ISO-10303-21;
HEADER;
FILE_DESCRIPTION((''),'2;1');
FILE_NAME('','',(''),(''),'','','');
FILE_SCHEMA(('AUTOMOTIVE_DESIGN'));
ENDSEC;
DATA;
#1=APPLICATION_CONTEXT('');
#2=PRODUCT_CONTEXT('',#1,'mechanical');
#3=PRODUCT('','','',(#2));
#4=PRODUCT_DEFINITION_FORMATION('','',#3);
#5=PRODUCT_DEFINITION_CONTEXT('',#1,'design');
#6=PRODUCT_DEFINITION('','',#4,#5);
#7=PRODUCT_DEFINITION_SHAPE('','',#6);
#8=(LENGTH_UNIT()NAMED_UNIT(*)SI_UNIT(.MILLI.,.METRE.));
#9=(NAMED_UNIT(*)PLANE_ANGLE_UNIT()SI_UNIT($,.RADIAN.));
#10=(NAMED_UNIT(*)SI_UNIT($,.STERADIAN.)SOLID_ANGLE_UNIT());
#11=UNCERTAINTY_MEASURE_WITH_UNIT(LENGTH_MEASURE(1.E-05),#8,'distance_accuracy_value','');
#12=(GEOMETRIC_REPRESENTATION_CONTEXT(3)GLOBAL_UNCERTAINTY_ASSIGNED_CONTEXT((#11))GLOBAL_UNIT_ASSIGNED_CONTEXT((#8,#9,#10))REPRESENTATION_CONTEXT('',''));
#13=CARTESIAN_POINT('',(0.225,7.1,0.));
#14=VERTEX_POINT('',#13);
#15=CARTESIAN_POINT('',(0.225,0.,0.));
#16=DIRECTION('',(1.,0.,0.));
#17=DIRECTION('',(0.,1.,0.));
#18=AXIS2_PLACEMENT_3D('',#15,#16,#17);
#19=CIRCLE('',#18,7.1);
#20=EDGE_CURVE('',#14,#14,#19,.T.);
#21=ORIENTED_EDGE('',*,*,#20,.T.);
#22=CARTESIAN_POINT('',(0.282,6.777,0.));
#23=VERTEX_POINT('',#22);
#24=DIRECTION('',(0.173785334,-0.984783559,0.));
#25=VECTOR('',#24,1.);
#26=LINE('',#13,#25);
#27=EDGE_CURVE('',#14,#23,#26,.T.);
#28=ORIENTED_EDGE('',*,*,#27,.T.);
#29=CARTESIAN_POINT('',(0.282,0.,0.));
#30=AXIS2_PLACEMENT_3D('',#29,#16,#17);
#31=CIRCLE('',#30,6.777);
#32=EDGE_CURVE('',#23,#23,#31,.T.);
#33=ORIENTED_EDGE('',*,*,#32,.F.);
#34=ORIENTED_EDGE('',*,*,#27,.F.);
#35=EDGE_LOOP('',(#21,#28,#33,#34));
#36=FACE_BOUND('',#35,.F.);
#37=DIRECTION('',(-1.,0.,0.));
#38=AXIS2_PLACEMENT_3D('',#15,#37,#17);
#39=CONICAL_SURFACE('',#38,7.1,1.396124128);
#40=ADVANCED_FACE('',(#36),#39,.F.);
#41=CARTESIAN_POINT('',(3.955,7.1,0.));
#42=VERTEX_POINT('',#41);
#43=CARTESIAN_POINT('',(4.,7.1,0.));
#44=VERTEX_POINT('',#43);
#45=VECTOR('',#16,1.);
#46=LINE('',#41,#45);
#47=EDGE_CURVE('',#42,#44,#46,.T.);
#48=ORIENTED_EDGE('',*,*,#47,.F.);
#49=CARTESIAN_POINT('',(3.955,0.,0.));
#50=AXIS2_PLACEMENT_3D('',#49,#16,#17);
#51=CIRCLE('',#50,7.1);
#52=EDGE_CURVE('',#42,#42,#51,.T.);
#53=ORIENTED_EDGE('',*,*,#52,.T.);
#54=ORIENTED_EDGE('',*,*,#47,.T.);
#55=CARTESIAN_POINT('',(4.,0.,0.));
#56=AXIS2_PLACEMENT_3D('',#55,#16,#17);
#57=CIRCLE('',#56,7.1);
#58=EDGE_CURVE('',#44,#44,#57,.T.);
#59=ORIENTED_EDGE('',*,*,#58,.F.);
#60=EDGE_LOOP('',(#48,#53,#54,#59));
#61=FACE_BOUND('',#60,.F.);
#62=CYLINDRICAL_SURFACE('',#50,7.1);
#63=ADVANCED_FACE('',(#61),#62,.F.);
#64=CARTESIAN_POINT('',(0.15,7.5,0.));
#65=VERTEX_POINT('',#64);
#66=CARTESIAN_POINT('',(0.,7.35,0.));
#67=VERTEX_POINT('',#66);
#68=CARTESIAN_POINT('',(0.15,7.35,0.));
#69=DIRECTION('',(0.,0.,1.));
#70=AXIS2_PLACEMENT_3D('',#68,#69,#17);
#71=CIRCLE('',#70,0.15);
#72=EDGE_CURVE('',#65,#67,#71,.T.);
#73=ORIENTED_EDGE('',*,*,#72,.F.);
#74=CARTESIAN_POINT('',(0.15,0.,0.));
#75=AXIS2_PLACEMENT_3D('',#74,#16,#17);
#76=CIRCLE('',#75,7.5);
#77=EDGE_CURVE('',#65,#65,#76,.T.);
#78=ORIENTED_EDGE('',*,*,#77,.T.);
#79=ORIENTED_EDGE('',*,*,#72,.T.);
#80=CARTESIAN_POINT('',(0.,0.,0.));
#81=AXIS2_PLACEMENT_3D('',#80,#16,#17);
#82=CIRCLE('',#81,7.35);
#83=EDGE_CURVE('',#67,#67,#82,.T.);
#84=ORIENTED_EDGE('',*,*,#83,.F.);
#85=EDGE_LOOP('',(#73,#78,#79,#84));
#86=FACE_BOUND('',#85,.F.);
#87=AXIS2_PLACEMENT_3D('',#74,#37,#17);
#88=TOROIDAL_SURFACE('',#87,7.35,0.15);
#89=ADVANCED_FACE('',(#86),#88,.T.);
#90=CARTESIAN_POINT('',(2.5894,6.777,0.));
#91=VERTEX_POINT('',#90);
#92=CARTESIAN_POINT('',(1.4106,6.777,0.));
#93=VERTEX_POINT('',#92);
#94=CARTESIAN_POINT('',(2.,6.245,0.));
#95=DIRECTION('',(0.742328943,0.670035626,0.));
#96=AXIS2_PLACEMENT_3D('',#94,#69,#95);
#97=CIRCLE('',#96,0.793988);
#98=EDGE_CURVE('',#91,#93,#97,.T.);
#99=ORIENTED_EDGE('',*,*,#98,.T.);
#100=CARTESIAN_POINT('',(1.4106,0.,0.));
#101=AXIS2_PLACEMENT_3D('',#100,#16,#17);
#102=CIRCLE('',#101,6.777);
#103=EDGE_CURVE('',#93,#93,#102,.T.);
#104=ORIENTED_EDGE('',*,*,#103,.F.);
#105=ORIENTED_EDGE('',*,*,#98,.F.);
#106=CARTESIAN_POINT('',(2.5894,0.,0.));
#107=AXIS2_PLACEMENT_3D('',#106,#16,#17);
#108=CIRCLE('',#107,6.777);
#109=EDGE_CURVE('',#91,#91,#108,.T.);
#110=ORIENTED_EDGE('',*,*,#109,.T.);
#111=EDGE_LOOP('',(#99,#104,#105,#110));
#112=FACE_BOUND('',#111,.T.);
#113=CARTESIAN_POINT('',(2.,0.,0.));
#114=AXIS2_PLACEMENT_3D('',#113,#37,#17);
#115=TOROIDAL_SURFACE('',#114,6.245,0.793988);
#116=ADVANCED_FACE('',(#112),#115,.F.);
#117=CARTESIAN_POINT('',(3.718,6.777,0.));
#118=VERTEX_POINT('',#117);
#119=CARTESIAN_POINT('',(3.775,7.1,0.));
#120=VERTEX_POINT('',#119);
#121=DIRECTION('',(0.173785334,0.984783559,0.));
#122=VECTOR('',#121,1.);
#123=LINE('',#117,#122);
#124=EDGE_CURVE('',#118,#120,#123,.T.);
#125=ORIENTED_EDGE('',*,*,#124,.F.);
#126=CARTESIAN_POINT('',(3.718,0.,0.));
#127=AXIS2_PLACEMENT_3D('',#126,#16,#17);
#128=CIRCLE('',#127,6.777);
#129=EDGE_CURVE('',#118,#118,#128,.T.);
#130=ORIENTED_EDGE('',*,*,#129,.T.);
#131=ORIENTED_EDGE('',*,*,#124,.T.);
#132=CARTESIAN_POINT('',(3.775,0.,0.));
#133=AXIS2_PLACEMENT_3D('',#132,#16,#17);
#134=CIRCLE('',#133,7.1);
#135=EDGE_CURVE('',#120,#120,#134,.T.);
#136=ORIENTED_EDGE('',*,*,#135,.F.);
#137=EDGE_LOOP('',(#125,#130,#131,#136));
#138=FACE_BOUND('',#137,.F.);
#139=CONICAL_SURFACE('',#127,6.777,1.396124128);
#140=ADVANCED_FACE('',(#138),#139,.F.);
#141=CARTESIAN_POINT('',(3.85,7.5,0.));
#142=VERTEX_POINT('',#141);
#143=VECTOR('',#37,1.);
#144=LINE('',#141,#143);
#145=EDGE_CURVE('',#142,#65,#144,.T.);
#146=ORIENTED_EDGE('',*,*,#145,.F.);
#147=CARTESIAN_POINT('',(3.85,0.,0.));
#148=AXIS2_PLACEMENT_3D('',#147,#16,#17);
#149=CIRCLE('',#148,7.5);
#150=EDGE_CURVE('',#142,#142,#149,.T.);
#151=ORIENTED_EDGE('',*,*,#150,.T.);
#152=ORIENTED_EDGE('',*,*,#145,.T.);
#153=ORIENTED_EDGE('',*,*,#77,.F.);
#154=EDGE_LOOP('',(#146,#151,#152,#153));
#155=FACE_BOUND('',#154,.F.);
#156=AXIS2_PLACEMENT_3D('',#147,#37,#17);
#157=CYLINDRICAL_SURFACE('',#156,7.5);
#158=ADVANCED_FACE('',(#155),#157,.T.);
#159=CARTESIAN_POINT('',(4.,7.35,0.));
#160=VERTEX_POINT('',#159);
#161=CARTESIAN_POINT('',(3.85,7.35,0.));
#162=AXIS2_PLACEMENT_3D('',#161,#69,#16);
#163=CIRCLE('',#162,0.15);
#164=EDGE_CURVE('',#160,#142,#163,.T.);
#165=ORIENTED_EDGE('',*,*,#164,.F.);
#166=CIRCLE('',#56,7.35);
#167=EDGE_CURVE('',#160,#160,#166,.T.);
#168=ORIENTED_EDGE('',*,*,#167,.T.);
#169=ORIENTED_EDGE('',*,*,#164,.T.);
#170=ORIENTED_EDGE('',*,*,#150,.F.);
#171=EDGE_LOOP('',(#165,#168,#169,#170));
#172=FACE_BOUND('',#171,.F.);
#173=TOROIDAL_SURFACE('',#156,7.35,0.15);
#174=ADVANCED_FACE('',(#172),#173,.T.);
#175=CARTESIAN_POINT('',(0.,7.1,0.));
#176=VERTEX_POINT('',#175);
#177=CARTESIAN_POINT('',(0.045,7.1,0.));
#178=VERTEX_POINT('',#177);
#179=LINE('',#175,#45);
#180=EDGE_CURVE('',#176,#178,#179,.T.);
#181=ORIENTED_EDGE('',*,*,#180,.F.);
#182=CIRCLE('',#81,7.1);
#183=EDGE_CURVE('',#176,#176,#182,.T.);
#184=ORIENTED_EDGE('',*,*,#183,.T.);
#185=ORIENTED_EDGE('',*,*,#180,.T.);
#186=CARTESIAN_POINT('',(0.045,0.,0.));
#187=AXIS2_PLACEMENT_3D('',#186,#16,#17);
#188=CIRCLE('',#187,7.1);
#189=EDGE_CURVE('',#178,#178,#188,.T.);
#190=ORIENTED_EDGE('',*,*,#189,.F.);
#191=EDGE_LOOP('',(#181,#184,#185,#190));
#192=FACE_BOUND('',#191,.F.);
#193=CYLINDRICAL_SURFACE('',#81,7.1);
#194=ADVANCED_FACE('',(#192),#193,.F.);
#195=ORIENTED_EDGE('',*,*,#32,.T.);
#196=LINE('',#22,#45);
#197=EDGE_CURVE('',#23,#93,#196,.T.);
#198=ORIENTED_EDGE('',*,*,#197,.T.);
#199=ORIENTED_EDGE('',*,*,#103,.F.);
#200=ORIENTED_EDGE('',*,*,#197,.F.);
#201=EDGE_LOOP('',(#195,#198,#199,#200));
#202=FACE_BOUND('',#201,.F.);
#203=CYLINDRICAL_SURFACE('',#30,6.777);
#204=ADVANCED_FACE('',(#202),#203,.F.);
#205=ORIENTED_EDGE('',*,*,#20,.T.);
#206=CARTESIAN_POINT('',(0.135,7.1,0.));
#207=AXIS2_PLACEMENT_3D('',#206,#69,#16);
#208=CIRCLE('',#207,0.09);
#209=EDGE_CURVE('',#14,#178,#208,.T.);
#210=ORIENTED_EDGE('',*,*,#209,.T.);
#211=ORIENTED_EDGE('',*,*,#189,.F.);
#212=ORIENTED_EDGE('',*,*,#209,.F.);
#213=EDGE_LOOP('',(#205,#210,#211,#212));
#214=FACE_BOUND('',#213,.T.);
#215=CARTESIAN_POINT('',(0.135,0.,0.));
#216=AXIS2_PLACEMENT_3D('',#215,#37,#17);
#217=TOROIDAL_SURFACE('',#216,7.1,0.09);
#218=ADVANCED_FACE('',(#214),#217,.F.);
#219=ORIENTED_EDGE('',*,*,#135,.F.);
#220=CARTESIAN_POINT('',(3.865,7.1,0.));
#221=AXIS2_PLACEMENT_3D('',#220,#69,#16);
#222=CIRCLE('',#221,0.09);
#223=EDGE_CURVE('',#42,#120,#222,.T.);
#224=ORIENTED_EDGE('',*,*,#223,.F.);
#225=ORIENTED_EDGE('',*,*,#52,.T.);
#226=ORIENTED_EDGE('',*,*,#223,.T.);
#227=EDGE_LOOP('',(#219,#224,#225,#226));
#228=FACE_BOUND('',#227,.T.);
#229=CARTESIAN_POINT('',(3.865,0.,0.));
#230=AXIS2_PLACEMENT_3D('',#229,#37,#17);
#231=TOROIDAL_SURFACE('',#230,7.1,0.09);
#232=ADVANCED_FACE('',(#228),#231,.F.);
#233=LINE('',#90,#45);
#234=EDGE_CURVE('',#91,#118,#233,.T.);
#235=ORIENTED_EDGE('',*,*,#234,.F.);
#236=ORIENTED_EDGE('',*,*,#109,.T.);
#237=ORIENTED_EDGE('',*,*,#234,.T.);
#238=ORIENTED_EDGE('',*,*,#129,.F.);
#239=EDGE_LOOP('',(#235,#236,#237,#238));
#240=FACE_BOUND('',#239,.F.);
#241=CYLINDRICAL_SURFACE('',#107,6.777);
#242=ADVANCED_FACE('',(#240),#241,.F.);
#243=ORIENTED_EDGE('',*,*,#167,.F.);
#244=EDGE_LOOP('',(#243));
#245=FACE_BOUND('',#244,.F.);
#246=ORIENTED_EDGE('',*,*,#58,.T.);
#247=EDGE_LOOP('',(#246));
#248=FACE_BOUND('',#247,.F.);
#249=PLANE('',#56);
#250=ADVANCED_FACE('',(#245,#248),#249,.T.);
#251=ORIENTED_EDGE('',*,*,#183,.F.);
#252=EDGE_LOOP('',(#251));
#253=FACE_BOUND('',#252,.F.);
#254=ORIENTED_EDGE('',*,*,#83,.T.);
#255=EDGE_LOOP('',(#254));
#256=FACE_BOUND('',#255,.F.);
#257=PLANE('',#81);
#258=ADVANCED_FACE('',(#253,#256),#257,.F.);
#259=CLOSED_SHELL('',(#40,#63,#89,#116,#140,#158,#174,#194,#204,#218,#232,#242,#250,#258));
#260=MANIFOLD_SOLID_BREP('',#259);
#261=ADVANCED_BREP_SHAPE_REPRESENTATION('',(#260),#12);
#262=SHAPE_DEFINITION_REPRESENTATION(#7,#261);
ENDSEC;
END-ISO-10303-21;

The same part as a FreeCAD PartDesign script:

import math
import FreeCAD as App
import Part
import Sketcher

doc = App.newDocument("Part")
params = doc.addObject("Spreadsheet::Sheet", "Params")
for row, (alias, value) in enumerate([
    ("sketch1_radius", "0.09 mm"),
    ("sketch1_radius2", "0.15 mm"),
    ("sketch1_width", "3.7 mm"),
    ("sketch1_height", "0.25 mm"),
    ("revolution_angle", "360 deg"),
], start=1):
    params.set(f"A{row}", alias)
    params.set(f"B{row}", "=" + value)
    params.setAlias(f"B{row}", alias)

body = doc.addObject("PartDesign::Body", "Body")

# Sketch on XY plane
sketch1 = body.newObject("Sketcher::SketchObject", "Sketch")
sketch1.AttachmentSupport = (doc.getObject("XY_Plane"), [""])
sketch1.MapMode = "FlatFace"
sketch1.addGeometry(Part.LineSegment(App.Vector(0, 7.35, 0), App.Vector(0, 7.1, 0)), False)
sketch1.addGeometry(Part.LineSegment(App.Vector(0, 7.1, 0), App.Vector(0.045, 7.1, 0)), False)
sketch1.addGeometry(Part.ArcOfCircle(Part.Circle(App.Vector(0.135, 7.1, 0), App.Vector(0, 0, 1), 0.09), math.radians(0), math.radians(180)), False)
sketch1.addGeometry(Part.LineSegment(App.Vector(0.225, 7.1, 0), App.Vector(0.282, 6.777, 0)), False)
sketch1.addGeometry(Part.LineSegment(App.Vector(0.282, 6.777, 0), App.Vector(1.411, 6.777, 0)), False)
sketch1.addGeometry(Part.ArcOfCircle(Part.Circle(App.Vector(2, 6.245, 0), App.Vector(0, 0, 1), 0.794), math.radians(42), math.radians(138)), False)
sketch1.addGeometry(Part.LineSegment(App.Vector(2.589, 6.777, 0), App.Vector(3.718, 6.777, 0)), False)
sketch1.addGeometry(Part.LineSegment(App.Vector(3.718, 6.777, 0), App.Vector(3.775, 7.1, 0)), False)
sketch1.addGeometry(Part.ArcOfCircle(Part.Circle(App.Vector(3.865, 7.1, 0), App.Vector(0, 0, 1), 0.09), math.radians(0), math.radians(180)), False)
sketch1.addGeometry(Part.LineSegment(App.Vector(3.955, 7.1, 0), App.Vector(4, 7.1, 0)), False)
sketch1.addGeometry(Part.LineSegment(App.Vector(4, 7.1, 0), App.Vector(4, 7.35, 0)), False)
sketch1.addGeometry(Part.ArcOfCircle(Part.Circle(App.Vector(3.85, 7.35, 0), App.Vector(0, 0, 1), 0.15), math.radians(0), math.radians(90)), False)
sketch1.addGeometry(Part.LineSegment(App.Vector(3.85, 7.5, 0), App.Vector(0.15, 7.5, 0)), False)
sketch1.addGeometry(Part.ArcOfCircle(Part.Circle(App.Vector(0.15, 7.35, 0), App.Vector(0, 0, 1), 0.15), math.radians(90), math.radians(180)), False)
sketch1.addConstraint(Sketcher.Constraint("Coincident", 0, 2, 1, 1))
sketch1.addConstraint(Sketcher.Constraint("Coincident", 1, 2, 2, 2))
sketch1.addConstraint(Sketcher.Constraint("Coincident", 2, 1, 3, 1))
sketch1.addConstraint(Sketcher.Constraint("Coincident", 3, 2, 4, 1))
sketch1.addConstraint(Sketcher.Constraint("Coincident", 4, 2, 5, 2))
sketch1.addConstraint(Sketcher.Constraint("Coincident", 5, 1, 6, 1))
sketch1.addConstraint(Sketcher.Constraint("Coincident", 6, 2, 7, 1))
sketch1.addConstraint(Sketcher.Constraint("Coincident", 7, 2, 8, 2))
sketch1.addConstraint(Sketcher.Constraint("Coincident", 8, 1, 9, 1))
sketch1.addConstraint(Sketcher.Constraint("Coincident", 9, 2, 10, 1))
sketch1.addConstraint(Sketcher.Constraint("Tangent", 10, 2, 11, 1))
sketch1.addConstraint(Sketcher.Constraint("Tangent", 11, 2, 12, 1))
sketch1.addConstraint(Sketcher.Constraint("Tangent", 12, 2, 13, 1))
sketch1.addConstraint(Sketcher.Constraint("Tangent", 13, 2, 0, 1))
sketch1.addConstraint(Sketcher.Constraint("Vertical", 0))
sketch1.addConstraint(Sketcher.Constraint("Horizontal", 1))
sketch1.addConstraint(Sketcher.Constraint("Horizontal", 4))
sketch1.addConstraint(Sketcher.Constraint("Horizontal", 6))
sketch1.addConstraint(Sketcher.Constraint("Horizontal", 9))
sketch1.addConstraint(Sketcher.Constraint("Vertical", 10))
sketch1.addConstraint(Sketcher.Constraint("Horizontal", 12))
sketch1.addConstraint(Sketcher.Constraint("Equal", 2, 8))
sketch1.addConstraint(Sketcher.Constraint("Equal", 11, 13))
sketch1.addConstraint(Sketcher.Constraint("PointOnObject", 0, 2, -2))
sketch1.addConstraint(Sketcher.Constraint("Horizontal", 2, 3, 8, 3))
sketch1.addConstraint(Sketcher.Constraint("Horizontal", 8, 3, 0, 2))
sketch1.addConstraint(Sketcher.Constraint("Horizontal", 1, 2, 2, 1))
sketch1.addConstraint(Sketcher.Constraint("Horizontal", 4, 2, 5, 1))
sketch1.addConstraint(Sketcher.Constraint("Horizontal", 2, 1, 7, 2))
sketch1.addConstraint(Sketcher.Constraint("Horizontal", 7, 2, 8, 1))
sketch1.addConstraint(Sketcher.Constraint("Equal", 4, 6))
sketch1.addConstraint(Sketcher.Constraint("Equal", 1, 9))
sketch1.addConstraint(Sketcher.Constraint("Equal", 3, 7))
sketch1.addConstraint(Sketcher.Constraint("Radius", 2, 0.09))
sketch1.addConstraint(Sketcher.Constraint("Radius", 11, 0.15))
sketch1.addConstraint(Sketcher.Constraint("DistanceX", 12, 2, 12, 1, 3.7))
sketch1.addConstraint(Sketcher.Constraint("Radius", 5, 0.794))
sketch1.addConstraint(Sketcher.Constraint("DistanceY", 0, 2, 0, 1, 0.25))
sketch1.addConstraint(Sketcher.Constraint("DistanceY", -1, 1, 2, 3, 7.1))
sketch1.addConstraint(Sketcher.Constraint("DistanceX", 1, 1, 1, 2, 0.045))
sketch1.addConstraint(Sketcher.Constraint("Distance", 3, 0.328))
sketch1.addConstraint(Sketcher.Constraint("DistanceX", 4, 1, 4, 2, 1.1286))
sketch1.addConstraint(Sketcher.Constraint("DistanceY", -1, 1, 5, 3, 6.245))
sketch1.setExpression("Constraints[33]", "Params.sketch1_radius")
sketch1.setExpression("Constraints[34]", "Params.sketch1_radius2")
sketch1.setExpression("Constraints[35]", "Params.sketch1_width")
sketch1.setExpression("Constraints[37]", "Params.sketch1_height")
revolution = body.newObject("PartDesign::Revolution", "Revolution")
revolution.Profile = sketch1
revolution.ReferenceAxis = (sketch1, ["H_Axis"])
revolution.setExpression("Angle", "Params.revolution_angle")

doc.recompute()
